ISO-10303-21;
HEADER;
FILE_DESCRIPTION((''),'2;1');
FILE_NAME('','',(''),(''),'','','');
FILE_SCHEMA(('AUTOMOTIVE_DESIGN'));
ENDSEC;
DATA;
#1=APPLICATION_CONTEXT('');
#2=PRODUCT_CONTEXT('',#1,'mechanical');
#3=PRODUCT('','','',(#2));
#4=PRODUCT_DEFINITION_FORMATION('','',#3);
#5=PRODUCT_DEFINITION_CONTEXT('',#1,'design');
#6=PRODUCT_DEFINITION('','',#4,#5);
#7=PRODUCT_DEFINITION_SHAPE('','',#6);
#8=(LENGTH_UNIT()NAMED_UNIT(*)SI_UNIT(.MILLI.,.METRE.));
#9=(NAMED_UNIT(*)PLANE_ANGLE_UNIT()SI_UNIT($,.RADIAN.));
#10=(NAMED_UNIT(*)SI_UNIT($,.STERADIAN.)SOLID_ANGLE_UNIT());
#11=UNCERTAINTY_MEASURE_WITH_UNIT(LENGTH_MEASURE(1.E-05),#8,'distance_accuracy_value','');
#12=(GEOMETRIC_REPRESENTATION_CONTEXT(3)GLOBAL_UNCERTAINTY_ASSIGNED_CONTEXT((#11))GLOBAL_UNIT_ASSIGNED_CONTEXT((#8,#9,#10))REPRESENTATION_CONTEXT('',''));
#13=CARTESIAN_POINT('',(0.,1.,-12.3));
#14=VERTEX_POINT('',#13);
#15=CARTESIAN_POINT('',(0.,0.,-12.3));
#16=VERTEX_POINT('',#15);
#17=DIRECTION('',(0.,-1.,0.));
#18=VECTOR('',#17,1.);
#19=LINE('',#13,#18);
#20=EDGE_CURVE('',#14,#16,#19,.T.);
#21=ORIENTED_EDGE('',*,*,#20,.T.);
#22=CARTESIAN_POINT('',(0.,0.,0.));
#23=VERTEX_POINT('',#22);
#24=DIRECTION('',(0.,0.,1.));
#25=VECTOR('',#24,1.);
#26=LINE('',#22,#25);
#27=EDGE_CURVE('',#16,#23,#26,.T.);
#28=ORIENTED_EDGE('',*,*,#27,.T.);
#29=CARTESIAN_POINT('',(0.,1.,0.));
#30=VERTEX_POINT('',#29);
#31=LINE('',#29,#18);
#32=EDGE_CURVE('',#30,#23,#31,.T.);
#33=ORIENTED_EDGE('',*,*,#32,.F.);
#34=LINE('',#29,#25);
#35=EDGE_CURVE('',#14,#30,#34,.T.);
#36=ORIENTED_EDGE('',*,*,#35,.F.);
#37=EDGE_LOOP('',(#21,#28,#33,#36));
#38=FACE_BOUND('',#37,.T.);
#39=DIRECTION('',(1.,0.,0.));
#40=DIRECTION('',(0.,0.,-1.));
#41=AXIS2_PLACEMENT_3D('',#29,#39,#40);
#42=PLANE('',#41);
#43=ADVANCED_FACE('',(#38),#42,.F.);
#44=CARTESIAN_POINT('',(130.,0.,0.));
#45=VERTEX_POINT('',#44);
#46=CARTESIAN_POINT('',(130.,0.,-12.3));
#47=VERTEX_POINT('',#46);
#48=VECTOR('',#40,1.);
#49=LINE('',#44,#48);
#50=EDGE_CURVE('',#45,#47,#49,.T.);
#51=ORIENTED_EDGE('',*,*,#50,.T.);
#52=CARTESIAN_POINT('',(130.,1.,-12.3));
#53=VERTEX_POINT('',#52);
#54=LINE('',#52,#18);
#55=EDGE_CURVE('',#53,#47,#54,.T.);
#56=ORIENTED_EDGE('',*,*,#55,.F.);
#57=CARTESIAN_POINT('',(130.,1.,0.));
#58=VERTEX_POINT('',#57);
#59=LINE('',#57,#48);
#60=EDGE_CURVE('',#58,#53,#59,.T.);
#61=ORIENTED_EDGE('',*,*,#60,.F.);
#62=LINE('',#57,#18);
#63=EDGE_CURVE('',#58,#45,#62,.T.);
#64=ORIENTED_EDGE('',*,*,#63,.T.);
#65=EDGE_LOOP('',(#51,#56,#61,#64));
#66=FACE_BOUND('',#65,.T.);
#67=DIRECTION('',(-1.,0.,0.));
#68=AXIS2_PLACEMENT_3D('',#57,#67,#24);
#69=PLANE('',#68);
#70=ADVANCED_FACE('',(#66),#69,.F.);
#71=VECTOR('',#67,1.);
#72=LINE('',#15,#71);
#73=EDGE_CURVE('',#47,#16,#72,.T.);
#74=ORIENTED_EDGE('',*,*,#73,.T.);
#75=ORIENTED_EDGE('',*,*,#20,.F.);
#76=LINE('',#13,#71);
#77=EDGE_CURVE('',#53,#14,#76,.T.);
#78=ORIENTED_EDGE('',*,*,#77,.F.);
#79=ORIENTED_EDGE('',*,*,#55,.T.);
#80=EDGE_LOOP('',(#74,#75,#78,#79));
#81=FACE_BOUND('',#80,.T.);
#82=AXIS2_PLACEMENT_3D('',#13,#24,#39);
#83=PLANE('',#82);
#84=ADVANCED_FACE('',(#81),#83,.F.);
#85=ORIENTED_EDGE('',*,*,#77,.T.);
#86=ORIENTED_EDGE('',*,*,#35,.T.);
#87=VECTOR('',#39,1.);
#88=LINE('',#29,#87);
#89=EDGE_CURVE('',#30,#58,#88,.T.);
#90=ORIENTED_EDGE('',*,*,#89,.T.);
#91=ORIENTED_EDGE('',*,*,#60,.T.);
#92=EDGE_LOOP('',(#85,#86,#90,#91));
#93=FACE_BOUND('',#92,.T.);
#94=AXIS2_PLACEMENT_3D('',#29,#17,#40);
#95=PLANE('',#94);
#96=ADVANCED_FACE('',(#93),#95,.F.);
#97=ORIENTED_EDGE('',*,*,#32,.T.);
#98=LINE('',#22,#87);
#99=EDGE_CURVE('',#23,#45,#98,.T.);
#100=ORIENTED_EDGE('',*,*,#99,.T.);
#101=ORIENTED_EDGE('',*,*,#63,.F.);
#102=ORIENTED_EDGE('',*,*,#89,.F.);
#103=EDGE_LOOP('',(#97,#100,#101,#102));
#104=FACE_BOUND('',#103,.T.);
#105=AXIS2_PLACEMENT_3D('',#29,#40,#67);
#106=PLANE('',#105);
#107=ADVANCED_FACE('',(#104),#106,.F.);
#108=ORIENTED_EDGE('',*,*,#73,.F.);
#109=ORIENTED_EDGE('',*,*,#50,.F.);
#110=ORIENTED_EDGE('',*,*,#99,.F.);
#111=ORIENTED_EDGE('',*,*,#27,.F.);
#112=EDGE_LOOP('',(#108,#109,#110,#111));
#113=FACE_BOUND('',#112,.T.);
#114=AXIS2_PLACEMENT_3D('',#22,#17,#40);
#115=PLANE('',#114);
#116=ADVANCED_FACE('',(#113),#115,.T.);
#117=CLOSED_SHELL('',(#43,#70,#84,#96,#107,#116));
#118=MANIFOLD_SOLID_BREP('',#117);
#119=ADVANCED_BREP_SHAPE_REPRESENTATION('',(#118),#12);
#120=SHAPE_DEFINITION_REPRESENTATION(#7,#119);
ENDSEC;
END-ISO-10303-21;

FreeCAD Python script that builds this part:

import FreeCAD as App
import Part
import Sketcher
from FreeCAD import Vector
Q = App.Units.Quantity

doc = App.newDocument("Part")
body = doc.addObject("PartDesign::Body", "Body")

# Sketch on XZ plane
sketch1 = body.newObject("Sketcher::SketchObject", "Sketch")
sketch1.AttachmentSupport = (doc.getObject("XZ_Plane"), [""])
sketch1.MapMode = "FlatFace"
sketch1.addGeometry([
    Part.LineSegment(Vector(0, -12, 0), Vector(0, 0, 0)),
    Part.LineSegment(Vector(0, 0, 0), Vector(130, 0, 0)),
    Part.LineSegment(Vector(130, 0, 0), Vector(130, -12, 0)),
    Part.LineSegment(Vector(130, -12, 0), Vector(0, -12, 0)),
], False)
sketch1.addConstraint([
    Sketcher.Constraint("Coincident", 0, 2, 1, 1),
    Sketcher.Constraint("Coincident", 1, 2, 2, 1),
    Sketcher.Constraint("Coincident", 2, 2, 3, 1),
    Sketcher.Constraint("Coincident", 3, 2, 0, 1),
    Sketcher.Constraint("Vertical", 0),
    Sketcher.Constraint("Horizontal", 1),
    Sketcher.Constraint("Vertical", 2),
    Sketcher.Constraint("Horizontal", 3),
    Sketcher.Constraint("Coincident", 0, 2, -1, 1),
    Sketcher.Constraint("DistanceX", 1, 1, 1, 2, Q("130 mm")),
    Sketcher.Constraint("DistanceY", 0, 1, 0, 2, Q("12.3 mm")),
])
pad1 = body.newObject("PartDesign::Pad", "Pad")
pad1.Profile = sketch1
pad1.Length = 1
pad1.Reversed = True

doc.recompute()
